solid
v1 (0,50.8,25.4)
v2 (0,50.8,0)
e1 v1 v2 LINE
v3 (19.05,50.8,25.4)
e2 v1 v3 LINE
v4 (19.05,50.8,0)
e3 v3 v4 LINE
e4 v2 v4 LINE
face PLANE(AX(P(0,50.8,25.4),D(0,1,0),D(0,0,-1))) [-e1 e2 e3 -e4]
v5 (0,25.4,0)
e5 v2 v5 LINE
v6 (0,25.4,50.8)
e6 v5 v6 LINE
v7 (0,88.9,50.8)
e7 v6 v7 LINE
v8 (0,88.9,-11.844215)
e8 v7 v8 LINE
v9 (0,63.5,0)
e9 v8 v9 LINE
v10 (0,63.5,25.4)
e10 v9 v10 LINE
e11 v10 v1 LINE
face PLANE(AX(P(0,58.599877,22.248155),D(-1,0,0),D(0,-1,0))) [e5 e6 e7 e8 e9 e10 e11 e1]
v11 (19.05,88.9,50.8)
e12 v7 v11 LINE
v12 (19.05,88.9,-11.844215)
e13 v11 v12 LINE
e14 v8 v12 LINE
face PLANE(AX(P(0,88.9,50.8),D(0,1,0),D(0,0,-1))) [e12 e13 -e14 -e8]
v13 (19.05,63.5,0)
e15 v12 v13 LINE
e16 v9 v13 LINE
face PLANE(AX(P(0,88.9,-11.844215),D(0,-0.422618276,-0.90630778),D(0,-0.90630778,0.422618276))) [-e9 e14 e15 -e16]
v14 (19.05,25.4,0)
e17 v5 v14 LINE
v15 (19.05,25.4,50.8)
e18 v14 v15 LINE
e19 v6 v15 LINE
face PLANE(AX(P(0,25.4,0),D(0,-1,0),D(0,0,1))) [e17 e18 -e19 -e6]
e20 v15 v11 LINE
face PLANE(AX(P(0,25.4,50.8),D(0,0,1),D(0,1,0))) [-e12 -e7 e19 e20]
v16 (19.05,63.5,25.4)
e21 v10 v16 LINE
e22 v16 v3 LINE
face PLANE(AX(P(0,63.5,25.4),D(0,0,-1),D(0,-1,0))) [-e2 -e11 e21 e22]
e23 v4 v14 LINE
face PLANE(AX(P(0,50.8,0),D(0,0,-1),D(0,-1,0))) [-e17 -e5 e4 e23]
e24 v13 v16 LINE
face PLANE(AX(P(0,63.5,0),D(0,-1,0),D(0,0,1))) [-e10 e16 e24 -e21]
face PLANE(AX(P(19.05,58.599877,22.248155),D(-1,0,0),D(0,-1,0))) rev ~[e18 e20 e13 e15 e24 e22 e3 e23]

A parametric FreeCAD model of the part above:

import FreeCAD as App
import Part
import Sketcher
from FreeCAD import Vector
Q = App.Units.Quantity


def add_polygon(sketch, points):
    """Adds a closed chain of lines whose ends are joined by coincident constraints."""
    first, n = sketch.GeometryCount, len(points)
    for a, b in zip(points, points[1:] + points[:1]):
        sketch.addGeometry(Part.LineSegment(App.Vector(*a, 0), App.Vector(*b, 0)), False)
    for i in range(n):
        sketch.addConstraint(Sketcher.Constraint("Coincident", first + i, 2, first + (i + 1) % n, 1))

doc = App.newDocument("Part")
body = doc.addObject("PartDesign::Body", "Body")

# Sketch on YZ plane
sketch1 = doc.addObject("Sketcher::SketchObject", "Sketch")
body.addObject(sketch1)
sketch1.AttachmentSupport = (doc.YZ_Plane, [""])
sketch1.MapMode = "FlatFace"
add_polygon(sketch1, [(0, 25), (0, 0), (25, 0), (25, 51), (-38, 51), (-38, -12), (-13, 0), (-13, 25)])  # lines 0-7
sketch1.addConstraint(Sketcher.Constraint("Vertical", 0))
sketch1.addConstraint(Sketcher.Constraint("Horizontal", 1))
sketch1.addConstraint(Sketcher.Constraint("Vertical", 2))
sketch1.addConstraint(Sketcher.Constraint("Horizontal", 3))
sketch1.addConstraint(Sketcher.Constraint("Vertical", 4))
sketch1.addConstraint(Sketcher.Constraint("Vertical", 6))
sketch1.addConstraint(Sketcher.Constraint("Horizontal", 7))
sketch1.addConstraint(Sketcher.Constraint("Coincident", 0, 2, -1, 1))
sketch1.addConstraint(Sketcher.Constraint("PointOnObject", 5, 2, -1))
sketch1.addConstraint(Sketcher.Constraint("Equal", 1, 0))
sketch1.addConstraint(Sketcher.Constraint("DistanceX", 1, 1, 1, 2, Q("1 in")))
sketch1.addConstraint(Sketcher.Constraint("DistanceY", 2, 1, 2, 2, Q("2 in")))
sketch1.addConstraint(Sketcher.Constraint("DistanceX", 3, 2, 3, 1, Q("2.5 in")))
sketch1.addConstraint(Sketcher.Constraint("DistanceX", 7, 1, 7, 2, Q("0.5 in")))
sketch1.addConstraint(Sketcher.Constraint("Angle", 5, Q("25.000001 deg")))
pad1 = doc.addObject("PartDesign::Pad", "Pad")
body.addObject(pad1)
pad1.Profile = sketch1
pad1.Length = Q("0.75 in")
pad1.Reversed = True
body2 = doc.addObject("PartDesign::Body", "Body001")
doc.recompute()

body.Placement = App.Placement(Vector(0, 50.8, 0), App.Rotation(Vector(0, 0, 1), 180))
boolean = doc.addObject("PartDesign::Boolean", "Boolean")
body2.addObject(boolean)
boolean.Type = "Fuse"
boolean.addObjects([body])

doc.recompute()
